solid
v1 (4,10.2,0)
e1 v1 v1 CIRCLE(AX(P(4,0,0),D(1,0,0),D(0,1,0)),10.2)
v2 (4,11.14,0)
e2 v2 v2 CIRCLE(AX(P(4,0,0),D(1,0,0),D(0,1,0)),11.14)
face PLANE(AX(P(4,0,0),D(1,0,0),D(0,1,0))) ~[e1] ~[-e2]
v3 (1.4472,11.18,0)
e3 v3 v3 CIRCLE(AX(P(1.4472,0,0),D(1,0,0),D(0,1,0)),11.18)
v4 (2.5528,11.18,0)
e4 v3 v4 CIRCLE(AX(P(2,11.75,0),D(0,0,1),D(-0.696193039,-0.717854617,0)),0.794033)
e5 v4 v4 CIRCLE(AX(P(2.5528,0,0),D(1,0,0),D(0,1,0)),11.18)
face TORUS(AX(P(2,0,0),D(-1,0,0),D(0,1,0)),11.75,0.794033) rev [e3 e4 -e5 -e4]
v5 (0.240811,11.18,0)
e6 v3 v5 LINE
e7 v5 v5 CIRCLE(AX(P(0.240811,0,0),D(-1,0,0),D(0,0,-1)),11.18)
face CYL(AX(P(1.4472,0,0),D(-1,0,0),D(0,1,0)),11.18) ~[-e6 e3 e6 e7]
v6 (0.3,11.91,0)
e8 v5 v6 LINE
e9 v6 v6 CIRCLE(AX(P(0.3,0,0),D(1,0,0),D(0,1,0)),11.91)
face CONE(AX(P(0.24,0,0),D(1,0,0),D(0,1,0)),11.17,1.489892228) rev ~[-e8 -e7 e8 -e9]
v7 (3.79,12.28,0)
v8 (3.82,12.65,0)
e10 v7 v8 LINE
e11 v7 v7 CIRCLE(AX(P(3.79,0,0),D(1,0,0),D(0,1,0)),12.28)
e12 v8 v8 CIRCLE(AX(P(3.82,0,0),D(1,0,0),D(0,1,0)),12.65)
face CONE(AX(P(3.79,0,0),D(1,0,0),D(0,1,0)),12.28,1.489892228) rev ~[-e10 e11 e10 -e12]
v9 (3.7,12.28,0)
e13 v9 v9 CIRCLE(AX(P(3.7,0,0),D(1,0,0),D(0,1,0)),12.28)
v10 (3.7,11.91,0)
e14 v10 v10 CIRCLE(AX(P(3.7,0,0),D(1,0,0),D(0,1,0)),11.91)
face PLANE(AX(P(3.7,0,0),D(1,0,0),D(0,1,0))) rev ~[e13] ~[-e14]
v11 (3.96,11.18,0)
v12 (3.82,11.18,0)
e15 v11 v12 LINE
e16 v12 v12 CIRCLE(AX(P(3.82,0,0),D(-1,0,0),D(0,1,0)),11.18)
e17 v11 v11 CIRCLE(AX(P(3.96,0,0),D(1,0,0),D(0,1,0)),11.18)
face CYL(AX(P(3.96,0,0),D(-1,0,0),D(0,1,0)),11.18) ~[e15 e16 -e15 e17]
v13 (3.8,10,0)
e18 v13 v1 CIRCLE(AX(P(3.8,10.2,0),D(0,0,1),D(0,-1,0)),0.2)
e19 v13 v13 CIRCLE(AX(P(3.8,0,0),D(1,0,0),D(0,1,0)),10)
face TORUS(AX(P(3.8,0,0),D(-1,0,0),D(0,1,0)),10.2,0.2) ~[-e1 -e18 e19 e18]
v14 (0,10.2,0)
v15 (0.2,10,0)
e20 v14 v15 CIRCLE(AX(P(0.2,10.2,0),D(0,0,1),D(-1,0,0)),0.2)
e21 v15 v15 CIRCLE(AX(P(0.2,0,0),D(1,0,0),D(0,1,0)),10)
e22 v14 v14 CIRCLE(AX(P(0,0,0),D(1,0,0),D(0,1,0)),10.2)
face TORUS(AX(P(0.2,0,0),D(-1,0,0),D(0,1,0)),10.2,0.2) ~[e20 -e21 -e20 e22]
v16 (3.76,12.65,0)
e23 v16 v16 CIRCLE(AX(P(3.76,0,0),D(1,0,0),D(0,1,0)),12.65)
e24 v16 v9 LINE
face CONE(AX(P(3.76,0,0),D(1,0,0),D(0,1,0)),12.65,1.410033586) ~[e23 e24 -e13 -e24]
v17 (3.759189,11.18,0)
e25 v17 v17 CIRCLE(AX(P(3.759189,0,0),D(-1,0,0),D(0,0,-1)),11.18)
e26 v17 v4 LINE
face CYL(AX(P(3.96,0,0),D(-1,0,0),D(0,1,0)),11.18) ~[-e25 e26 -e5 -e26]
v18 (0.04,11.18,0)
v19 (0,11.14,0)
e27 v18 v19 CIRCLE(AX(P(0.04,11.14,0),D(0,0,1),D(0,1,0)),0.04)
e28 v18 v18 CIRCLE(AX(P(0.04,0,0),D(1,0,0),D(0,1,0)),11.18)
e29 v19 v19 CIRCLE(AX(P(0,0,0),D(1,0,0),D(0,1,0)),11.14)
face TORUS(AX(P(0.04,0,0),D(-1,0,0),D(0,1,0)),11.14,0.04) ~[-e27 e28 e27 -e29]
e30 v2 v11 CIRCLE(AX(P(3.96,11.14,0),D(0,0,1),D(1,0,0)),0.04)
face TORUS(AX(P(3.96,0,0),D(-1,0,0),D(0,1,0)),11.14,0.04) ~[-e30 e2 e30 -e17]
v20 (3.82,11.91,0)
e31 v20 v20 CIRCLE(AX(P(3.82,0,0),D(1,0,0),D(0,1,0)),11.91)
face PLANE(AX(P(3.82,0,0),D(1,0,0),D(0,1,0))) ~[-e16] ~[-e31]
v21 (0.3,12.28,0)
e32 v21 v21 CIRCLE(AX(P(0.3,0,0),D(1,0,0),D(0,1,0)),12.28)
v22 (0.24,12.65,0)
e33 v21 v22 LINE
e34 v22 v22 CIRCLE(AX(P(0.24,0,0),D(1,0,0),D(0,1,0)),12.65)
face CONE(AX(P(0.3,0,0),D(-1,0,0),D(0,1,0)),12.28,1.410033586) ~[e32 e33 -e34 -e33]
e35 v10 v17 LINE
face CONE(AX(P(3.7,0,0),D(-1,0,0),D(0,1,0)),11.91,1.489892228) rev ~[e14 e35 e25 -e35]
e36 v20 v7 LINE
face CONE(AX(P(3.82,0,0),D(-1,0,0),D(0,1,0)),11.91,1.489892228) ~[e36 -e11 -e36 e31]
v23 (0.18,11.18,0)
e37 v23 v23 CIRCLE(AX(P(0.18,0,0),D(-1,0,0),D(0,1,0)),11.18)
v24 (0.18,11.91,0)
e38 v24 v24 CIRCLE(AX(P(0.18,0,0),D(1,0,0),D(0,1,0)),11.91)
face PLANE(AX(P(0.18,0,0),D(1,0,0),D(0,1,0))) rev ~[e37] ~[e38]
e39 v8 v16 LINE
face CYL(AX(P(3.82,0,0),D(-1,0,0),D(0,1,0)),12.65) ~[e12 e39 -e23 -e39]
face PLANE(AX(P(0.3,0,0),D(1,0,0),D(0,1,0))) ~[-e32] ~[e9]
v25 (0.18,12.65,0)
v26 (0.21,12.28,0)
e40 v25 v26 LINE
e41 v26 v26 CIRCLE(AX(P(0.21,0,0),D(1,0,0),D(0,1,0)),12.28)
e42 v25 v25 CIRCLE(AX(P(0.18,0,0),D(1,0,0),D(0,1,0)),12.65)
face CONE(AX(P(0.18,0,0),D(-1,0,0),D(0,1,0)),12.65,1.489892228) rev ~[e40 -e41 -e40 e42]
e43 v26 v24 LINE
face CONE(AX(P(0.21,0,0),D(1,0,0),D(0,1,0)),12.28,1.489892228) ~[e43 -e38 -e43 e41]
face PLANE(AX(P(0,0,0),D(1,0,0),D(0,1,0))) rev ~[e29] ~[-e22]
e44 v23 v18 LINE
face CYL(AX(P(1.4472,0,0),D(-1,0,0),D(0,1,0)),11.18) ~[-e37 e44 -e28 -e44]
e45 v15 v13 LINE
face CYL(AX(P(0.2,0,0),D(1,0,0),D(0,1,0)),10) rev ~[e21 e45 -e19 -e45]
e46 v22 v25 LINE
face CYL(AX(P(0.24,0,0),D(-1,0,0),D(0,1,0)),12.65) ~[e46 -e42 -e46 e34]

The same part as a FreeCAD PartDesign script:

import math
import FreeCAD as App
import Part
import Sketcher

V = App.Vector
Q = App.Units.Quantity

doc = App.newDocument("Part")
body = doc.addObject("PartDesign::Body", "Body")

# Sketch on XY plane
sketch1 = body.newObject("Sketcher::SketchObject", "Sketch")
sketch1.AttachmentSupport = (doc.getObject("XY_Plane"), [""])
sketch1.MapMode = "FlatFace"
sketch1.addGeometry(Part.ArcOfCircle(Part.Circle(V(0.04, 11.14, 0), V(0, 0, 1), 0.04), math.radians(90), math.radians(180)), False)
sketch1.addGeometry(Part.LineSegment(V(0, 11.14, 0), V(0, 10.2, 0)), False)
sketch1.addGeometry(Part.ArcOfCircle(Part.Circle(V(0.2, 10.2, 0), V(0, 0, 1), 0.2), math.radians(180), math.radians(270)), False)
sketch1.addGeometry(Part.LineSegment(V(0.2, 10, 0), V(3.8, 10, 0)), False)
sketch1.addGeometry(Part.ArcOfCircle(Part.Circle(V(3.8, 10.2, 0), V(0, 0, 1), 0.2), math.radians(-90), math.radians(0)), False)
sketch1.addGeometry(Part.LineSegment(V(4, 10.2, 0), V(4, 11.14, 0)), False)
sketch1.addGeometry(Part.ArcOfCircle(Part.Circle(V(3.96, 11.14, 0), V(0, 0, 1), 0.04), math.radians(0), math.radians(90)), False)
sketch1.addGeometry(Part.LineSegment(V(3.96, 11.18, 0), V(2.553, 11.18, 0)), False)
sketch1.addGeometry(Part.ArcOfCircle(Part.Circle(V(2, 11.75, 0), V(0, 0, 1), 0.794), math.radians(-134), math.radians(-46)), False)
sketch1.addGeometry(Part.LineSegment(V(1.447, 11.18, 0), V(0.04, 11.18, 0)), False)
sketch1.addConstraint(Sketcher.Constraint("Tangent", 0, 2, 1, 1))
sketch1.addConstraint(Sketcher.Constraint("Tangent", 1, 2, 2, 1))
sketch1.addConstraint(Sketcher.Constraint("Tangent", 2, 2, 3, 1))
sketch1.addConstraint(Sketcher.Constraint("Tangent", 3, 2, 4, 1))
sketch1.addConstraint(Sketcher.Constraint("Tangent", 4, 2, 5, 1))
sketch1.addConstraint(Sketcher.Constraint("Tangent", 5, 2, 6, 1))
sketch1.addConstraint(Sketcher.Constraint("Tangent", 6, 2, 7, 1))
sketch1.addConstraint(Sketcher.Constraint("Coincident", 7, 2, 8, 2))
sketch1.addConstraint(Sketcher.Constraint("Coincident", 8, 1, 9, 1))
sketch1.addConstraint(Sketcher.Constraint("Tangent", 9, 2, 0, 1))
sketch1.addConstraint(Sketcher.Constraint("Vertical", 1))
sketch1.addConstraint(Sketcher.Constraint("Horizontal", 3))
sketch1.addConstraint(Sketcher.Constraint("Vertical", 5))
sketch1.addConstraint(Sketcher.Constraint("Horizontal", 7))
sketch1.addConstraint(Sketcher.Constraint("Horizontal", 9))
sketch1.addConstraint(Sketcher.Constraint("Equal", 2, 4))
sketch1.addConstraint(Sketcher.Constraint("Equal", 0, 6))
sketch1.addConstraint(Sketcher.Constraint("PointOnObject", 0, 2, -2))
sketch1.addConstraint(Sketcher.Constraint("Horizontal", 0, 3, 6, 3))
sketch1.addConstraint(Sketcher.Constraint("Equal", 7, 9))
sketch1.addConstraint(Sketcher.Constraint("Radius", 2, 0.2))
sketch1.addConstraint(Sketcher.Constraint("Radius", 0, 0.04))
sketch1.addConstraint(Sketcher.Constraint("DistanceX", 3, 1, 3, 2, 3.6))
sketch1.addConstraint(Sketcher.Constraint("DistanceY", -1, 1, 2, 2, 10.0))
sketch1.addConstraint(Sketcher.Constraint("Radius", 8, 0.794))
sketch1.addConstraint(Sketcher.Constraint("DistanceY", 1, 2, 1, 1, 0.94))
sketch1.addConstraint(Sketcher.Constraint("DistanceY", -1, 1, 8, 3, 11.75))
revolution = body.newObject("PartDesign::Revolution", "Revolution")
revolution.Profile = sketch1
revolution.ReferenceAxis = (sketch1, ["H_Axis"])
revolution.Angle = 360

# Sketch on XY plane
sketch2 = body.newObject("Sketcher::SketchObject", "Sketch001")
sketch2.AttachmentSupport = (doc.getObject("XY_Plane"), [""])
sketch2.MapMode = "FlatFace"
sketch2.addGeometry(Part.LineSegment(V(0.24, 12.65, 0), V(0.18, 12.65, 0)), False)
sketch2.addGeometry(Part.LineSegment(V(0.18, 12.65, 0), V(0.21, 12.28, 0)), False)
sketch2.addGeometry(Part.LineSegment(V(0.21, 12.28, 0), V(0.18, 11.91, 0)), False)
sketch2.addGeometry(Part.LineSegment(V(0.18, 11.91, 0), V(0.18, 11.17, 0)), False)
sketch2.addGeometry(Part.LineSegment(V(0.18, 11.17, 0), V(0.24, 11.17, 0)), False)
sketch2.addGeometry(Part.LineSegment(V(0.24, 11.17, 0), V(0.3, 11.91, 0)), False)
sketch2.addGeometry(Part.LineSegment(V(0.3, 11.91, 0), V(0.3, 12.28, 0)), False)
sketch2.addGeometry(Part.LineSegment(V(0.3, 12.28, 0), V(0.24, 12.65, 0)), False)
sketch2.addConstraint(Sketcher.Constraint("Coincident", 0, 2, 1, 1))
sketch2.addConstraint(Sketcher.Constraint("Coincident", 1, 2, 2, 1))
sketch2.addConstraint(Sketcher.Constraint("Coincident", 2, 2, 3, 1))
sketch2.addConstraint(Sketcher.Constraint("Coincident", 3, 2, 4, 1))
sketch2.addConstraint(Sketcher.Constraint("Coincident", 4, 2, 5, 1))
sketch2.addConstraint(Sketcher.Constraint("Coincident", 5, 2, 6, 1))
sketch2.addConstraint(Sketcher.Constraint("Coincident", 6, 2, 7, 1))
sketch2.addConstraint(Sketcher.Constraint("Coincident", 7, 2, 0, 1))
sketch2.addConstraint(Sketcher.Constraint("Horizontal", 0))
sketch2.addConstraint(Sketcher.Constraint("Vertical", 3))
sketch2.addConstraint(Sketcher.Constraint("Horizontal", 4))
sketch2.addConstraint(Sketcher.Constraint("Vertical", 6))
sketch2.addConstraint(Sketcher.Constraint("Parallel", 2, 5))
sketch2.addConstraint(Sketcher.Constraint("Horizontal", 2, 2, 5, 2))
sketch2.addConstraint(Sketcher.Constraint("Horizontal", 1, 2, 6, 2))
sketch2.addConstraint(Sketcher.Constraint("Vertical", 0, 2, 2, 2))
sketch2.addConstraint(Sketcher.Constraint("Vertical", 4, 2, 7, 2))
sketch2.addConstraint(Sketcher.Constraint("Equal", 1, 2))
sketch2.addConstraint(Sketcher.Constraint("DistanceX", 0, 2, 0, 1, 0.06))
sketch2.addConstraint(Sketcher.Constraint("DistanceY", 3, 2, 3, 1, 0.74))
sketch2.addConstraint(Sketcher.Constraint("DistanceY", 6, 1, 6, 2, 0.37))
sketch2.addConstraint(Sketcher.Constraint("DistanceX", -1, 1, 5, 2, 0.3))
sketch2.addConstraint(Sketcher.Constraint("Angle", 7, Q("99.211 deg")))
sketch2.addConstraint(Sketcher.Constraint("DistanceY", -1, 1, 0, 2, 12.65))
revolution2 = body.newObject("PartDesign::Revolution", "Revolution001")
revolution2.Profile = sketch2
revolution2.ReferenceAxis = (sketch2, ["H_Axis"])
revolution2.Angle = 360

# Sketch on XY plane
sketch3 = body.newObject("Sketcher::SketchObject", "Sketch002")
sketch3.AttachmentSupport = (doc.getObject("XY_Plane"), [""])
sketch3.MapMode = "FlatFace"
sketch3.addGeometry(Part.LineSegment(V(3.76, 12.65, 0), V(3.7, 12.28, 0)), False)
sketch3.addGeometry(Part.LineSegment(V(3.7, 12.28, 0), V(3.7, 11.91, 0)), False)
sketch3.addGeometry(Part.LineSegment(V(3.7, 11.91, 0), V(3.76, 11.17, 0)), False)
sketch3.addGeometry(Part.LineSegment(V(3.76, 11.17, 0), V(3.82, 11.17, 0)), False)
sketch3.addGeometry(Part.LineSegment(V(3.82, 11.17, 0), V(3.82, 11.91, 0)), False)
sketch3.addGeometry(Part.LineSegment(V(3.82, 11.91, 0), V(3.79, 12.28, 0)), False)
sketch3.addGeometry(Part.LineSegment(V(3.79, 12.28, 0), V(3.82, 12.65, 0)), False)
sketch3.addGeometry(Part.LineSegment(V(3.82, 12.65, 0), V(3.76, 12.65, 0)), False)
sketch3.addConstraint(Sketcher.Constraint("Coincident", 0, 2, 1, 1))
sketch3.addConstraint(Sketcher.Constraint("Coincident", 1, 2, 2, 1))
sketch3.addConstraint(Sketcher.Constraint("Coincident", 2, 2, 3, 1))
sketch3.addConstraint(Sketcher.Constraint("Coincident", 3, 2, 4, 1))
sketch3.addConstraint(Sketcher.Constraint("Coincident", 4, 2, 5, 1))
sketch3.addConstraint(Sketcher.Constraint("Coincident", 5, 2, 6, 1))
sketch3.addConstraint(Sketcher.Constraint("Coincident", 6, 2, 7, 1))
sketch3.addConstraint(Sketcher.Constraint("Coincident", 7, 2, 0, 1))
sketch3.addConstraint(Sketcher.Constraint("Vertical", 1))
sketch3.addConstraint(Sketcher.Constraint("Horizontal", 3))
sketch3.addConstraint(Sketcher.Constraint("Vertical", 4))
sketch3.addConstraint(Sketcher.Constraint("Horizontal", 7))
sketch3.addConstraint(Sketcher.Constraint("Parallel", 2, 5))
sketch3.addConstraint(Sketcher.Constraint("Horizontal", 1, 2, 4, 2))
sketch3.addConstraint(Sketcher.Constraint("Horizontal", 0, 2, 5, 2))
sketch3.addConstraint(Sketcher.Constraint("Vertical", 4, 2, 6, 2))
sketch3.addConstraint(Sketcher.Constraint("Vertical", 2, 2, 7, 2))
sketch3.addConstraint(Sketcher.Constraint("Equal", 5, 6))
sketch3.addConstraint(Sketcher.Constraint("DistanceX", 3, 1, 3, 2, 0.06))
sketch3.addConstraint(Sketcher.Constraint("DistanceY", 1, 2, 1, 1, 0.37))
sketch3.addConstraint(Sketcher.Constraint("DistanceY", 4, 1, 4, 2, 0.74))
sketch3.addConstraint(Sketcher.Constraint("DistanceX", -1, 1, 0, 2, 3.7))
sketch3.addConstraint(Sketcher.Constraint("Angle", 0, Q("-99.211 deg")))
sketch3.addConstraint(Sketcher.Constraint("DistanceY", -1, 1, 0, 2, 12.28))
revolution3 = body.newObject("PartDesign::Revolution", "Revolution002")
revolution3.Profile = sketch3
revolution3.ReferenceAxis = (sketch3, ["H_Axis"])
revolution3.Angle = 360

doc.recompute()
